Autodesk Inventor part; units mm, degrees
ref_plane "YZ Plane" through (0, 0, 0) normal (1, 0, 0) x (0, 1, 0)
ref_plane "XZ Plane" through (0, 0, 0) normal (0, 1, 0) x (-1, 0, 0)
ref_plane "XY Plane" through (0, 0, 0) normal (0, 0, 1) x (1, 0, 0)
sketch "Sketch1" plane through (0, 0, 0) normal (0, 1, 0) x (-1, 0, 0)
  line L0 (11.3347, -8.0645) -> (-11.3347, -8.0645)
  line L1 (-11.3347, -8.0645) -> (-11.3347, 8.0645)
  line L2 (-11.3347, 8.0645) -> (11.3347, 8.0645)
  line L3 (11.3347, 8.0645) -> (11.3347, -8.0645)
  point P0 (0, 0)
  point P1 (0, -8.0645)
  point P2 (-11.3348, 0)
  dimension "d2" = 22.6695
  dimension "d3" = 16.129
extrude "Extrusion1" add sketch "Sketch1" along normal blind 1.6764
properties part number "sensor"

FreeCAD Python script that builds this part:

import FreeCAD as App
import Part
import Sketcher
Q = App.Units.Quantity


def add_polygon(sketch, points):
    """Adds a closed chain of lines whose ends are joined by coincident constraints."""
    first, n = sketch.GeometryCount, len(points)
    for a, b in zip(points, points[1:] + points[:1]):
        sketch.addGeometry(Part.LineSegment(App.Vector(*a, 0), App.Vector(*b, 0)), False)
    for i in range(n):
        sketch.addConstraint(Sketcher.Constraint("Coincident", first + i, 2, first + (i + 1) % n, 1))

doc = App.newDocument("Part")
body = doc.addObject("PartDesign::Body", "Body")

# Sketch on XZ plane
sketch1 = body.newObject("Sketcher::SketchObject", "Sketch")
sketch1.AttachmentSupport = (doc.getObject("XZ_Plane"), [""])
sketch1.MapMode = "FlatFace"
add_polygon(sketch1, [(11.3347, -8.0645), (-11.3347, -8.0645), (-11.3347, 8.0645), (11.3347, 8.0645)])  # lines 0-3
sketch1.addConstraint([
    Sketcher.Constraint("Horizontal", 0),
    Sketcher.Constraint("Vertical", 1),
    Sketcher.Constraint("Horizontal", 2),
    Sketcher.Constraint("Vertical", 3),
    Sketcher.Constraint("Symmetric", 0, 2, 2, 2, -1, 1),
    Sketcher.Constraint("DistanceY", 1, 1, 1, 2, Q("0.635 in")),
    Sketcher.Constraint("DistanceX", 0, 2, 0, 1, Q("0.8925 in")),
])
pad1 = body.newObject("PartDesign::Pad", "Pad")
pad1.Profile = sketch1
pad1.Length = Q("0.066 in")
pad1.Reversed = True

doc.recompute()
